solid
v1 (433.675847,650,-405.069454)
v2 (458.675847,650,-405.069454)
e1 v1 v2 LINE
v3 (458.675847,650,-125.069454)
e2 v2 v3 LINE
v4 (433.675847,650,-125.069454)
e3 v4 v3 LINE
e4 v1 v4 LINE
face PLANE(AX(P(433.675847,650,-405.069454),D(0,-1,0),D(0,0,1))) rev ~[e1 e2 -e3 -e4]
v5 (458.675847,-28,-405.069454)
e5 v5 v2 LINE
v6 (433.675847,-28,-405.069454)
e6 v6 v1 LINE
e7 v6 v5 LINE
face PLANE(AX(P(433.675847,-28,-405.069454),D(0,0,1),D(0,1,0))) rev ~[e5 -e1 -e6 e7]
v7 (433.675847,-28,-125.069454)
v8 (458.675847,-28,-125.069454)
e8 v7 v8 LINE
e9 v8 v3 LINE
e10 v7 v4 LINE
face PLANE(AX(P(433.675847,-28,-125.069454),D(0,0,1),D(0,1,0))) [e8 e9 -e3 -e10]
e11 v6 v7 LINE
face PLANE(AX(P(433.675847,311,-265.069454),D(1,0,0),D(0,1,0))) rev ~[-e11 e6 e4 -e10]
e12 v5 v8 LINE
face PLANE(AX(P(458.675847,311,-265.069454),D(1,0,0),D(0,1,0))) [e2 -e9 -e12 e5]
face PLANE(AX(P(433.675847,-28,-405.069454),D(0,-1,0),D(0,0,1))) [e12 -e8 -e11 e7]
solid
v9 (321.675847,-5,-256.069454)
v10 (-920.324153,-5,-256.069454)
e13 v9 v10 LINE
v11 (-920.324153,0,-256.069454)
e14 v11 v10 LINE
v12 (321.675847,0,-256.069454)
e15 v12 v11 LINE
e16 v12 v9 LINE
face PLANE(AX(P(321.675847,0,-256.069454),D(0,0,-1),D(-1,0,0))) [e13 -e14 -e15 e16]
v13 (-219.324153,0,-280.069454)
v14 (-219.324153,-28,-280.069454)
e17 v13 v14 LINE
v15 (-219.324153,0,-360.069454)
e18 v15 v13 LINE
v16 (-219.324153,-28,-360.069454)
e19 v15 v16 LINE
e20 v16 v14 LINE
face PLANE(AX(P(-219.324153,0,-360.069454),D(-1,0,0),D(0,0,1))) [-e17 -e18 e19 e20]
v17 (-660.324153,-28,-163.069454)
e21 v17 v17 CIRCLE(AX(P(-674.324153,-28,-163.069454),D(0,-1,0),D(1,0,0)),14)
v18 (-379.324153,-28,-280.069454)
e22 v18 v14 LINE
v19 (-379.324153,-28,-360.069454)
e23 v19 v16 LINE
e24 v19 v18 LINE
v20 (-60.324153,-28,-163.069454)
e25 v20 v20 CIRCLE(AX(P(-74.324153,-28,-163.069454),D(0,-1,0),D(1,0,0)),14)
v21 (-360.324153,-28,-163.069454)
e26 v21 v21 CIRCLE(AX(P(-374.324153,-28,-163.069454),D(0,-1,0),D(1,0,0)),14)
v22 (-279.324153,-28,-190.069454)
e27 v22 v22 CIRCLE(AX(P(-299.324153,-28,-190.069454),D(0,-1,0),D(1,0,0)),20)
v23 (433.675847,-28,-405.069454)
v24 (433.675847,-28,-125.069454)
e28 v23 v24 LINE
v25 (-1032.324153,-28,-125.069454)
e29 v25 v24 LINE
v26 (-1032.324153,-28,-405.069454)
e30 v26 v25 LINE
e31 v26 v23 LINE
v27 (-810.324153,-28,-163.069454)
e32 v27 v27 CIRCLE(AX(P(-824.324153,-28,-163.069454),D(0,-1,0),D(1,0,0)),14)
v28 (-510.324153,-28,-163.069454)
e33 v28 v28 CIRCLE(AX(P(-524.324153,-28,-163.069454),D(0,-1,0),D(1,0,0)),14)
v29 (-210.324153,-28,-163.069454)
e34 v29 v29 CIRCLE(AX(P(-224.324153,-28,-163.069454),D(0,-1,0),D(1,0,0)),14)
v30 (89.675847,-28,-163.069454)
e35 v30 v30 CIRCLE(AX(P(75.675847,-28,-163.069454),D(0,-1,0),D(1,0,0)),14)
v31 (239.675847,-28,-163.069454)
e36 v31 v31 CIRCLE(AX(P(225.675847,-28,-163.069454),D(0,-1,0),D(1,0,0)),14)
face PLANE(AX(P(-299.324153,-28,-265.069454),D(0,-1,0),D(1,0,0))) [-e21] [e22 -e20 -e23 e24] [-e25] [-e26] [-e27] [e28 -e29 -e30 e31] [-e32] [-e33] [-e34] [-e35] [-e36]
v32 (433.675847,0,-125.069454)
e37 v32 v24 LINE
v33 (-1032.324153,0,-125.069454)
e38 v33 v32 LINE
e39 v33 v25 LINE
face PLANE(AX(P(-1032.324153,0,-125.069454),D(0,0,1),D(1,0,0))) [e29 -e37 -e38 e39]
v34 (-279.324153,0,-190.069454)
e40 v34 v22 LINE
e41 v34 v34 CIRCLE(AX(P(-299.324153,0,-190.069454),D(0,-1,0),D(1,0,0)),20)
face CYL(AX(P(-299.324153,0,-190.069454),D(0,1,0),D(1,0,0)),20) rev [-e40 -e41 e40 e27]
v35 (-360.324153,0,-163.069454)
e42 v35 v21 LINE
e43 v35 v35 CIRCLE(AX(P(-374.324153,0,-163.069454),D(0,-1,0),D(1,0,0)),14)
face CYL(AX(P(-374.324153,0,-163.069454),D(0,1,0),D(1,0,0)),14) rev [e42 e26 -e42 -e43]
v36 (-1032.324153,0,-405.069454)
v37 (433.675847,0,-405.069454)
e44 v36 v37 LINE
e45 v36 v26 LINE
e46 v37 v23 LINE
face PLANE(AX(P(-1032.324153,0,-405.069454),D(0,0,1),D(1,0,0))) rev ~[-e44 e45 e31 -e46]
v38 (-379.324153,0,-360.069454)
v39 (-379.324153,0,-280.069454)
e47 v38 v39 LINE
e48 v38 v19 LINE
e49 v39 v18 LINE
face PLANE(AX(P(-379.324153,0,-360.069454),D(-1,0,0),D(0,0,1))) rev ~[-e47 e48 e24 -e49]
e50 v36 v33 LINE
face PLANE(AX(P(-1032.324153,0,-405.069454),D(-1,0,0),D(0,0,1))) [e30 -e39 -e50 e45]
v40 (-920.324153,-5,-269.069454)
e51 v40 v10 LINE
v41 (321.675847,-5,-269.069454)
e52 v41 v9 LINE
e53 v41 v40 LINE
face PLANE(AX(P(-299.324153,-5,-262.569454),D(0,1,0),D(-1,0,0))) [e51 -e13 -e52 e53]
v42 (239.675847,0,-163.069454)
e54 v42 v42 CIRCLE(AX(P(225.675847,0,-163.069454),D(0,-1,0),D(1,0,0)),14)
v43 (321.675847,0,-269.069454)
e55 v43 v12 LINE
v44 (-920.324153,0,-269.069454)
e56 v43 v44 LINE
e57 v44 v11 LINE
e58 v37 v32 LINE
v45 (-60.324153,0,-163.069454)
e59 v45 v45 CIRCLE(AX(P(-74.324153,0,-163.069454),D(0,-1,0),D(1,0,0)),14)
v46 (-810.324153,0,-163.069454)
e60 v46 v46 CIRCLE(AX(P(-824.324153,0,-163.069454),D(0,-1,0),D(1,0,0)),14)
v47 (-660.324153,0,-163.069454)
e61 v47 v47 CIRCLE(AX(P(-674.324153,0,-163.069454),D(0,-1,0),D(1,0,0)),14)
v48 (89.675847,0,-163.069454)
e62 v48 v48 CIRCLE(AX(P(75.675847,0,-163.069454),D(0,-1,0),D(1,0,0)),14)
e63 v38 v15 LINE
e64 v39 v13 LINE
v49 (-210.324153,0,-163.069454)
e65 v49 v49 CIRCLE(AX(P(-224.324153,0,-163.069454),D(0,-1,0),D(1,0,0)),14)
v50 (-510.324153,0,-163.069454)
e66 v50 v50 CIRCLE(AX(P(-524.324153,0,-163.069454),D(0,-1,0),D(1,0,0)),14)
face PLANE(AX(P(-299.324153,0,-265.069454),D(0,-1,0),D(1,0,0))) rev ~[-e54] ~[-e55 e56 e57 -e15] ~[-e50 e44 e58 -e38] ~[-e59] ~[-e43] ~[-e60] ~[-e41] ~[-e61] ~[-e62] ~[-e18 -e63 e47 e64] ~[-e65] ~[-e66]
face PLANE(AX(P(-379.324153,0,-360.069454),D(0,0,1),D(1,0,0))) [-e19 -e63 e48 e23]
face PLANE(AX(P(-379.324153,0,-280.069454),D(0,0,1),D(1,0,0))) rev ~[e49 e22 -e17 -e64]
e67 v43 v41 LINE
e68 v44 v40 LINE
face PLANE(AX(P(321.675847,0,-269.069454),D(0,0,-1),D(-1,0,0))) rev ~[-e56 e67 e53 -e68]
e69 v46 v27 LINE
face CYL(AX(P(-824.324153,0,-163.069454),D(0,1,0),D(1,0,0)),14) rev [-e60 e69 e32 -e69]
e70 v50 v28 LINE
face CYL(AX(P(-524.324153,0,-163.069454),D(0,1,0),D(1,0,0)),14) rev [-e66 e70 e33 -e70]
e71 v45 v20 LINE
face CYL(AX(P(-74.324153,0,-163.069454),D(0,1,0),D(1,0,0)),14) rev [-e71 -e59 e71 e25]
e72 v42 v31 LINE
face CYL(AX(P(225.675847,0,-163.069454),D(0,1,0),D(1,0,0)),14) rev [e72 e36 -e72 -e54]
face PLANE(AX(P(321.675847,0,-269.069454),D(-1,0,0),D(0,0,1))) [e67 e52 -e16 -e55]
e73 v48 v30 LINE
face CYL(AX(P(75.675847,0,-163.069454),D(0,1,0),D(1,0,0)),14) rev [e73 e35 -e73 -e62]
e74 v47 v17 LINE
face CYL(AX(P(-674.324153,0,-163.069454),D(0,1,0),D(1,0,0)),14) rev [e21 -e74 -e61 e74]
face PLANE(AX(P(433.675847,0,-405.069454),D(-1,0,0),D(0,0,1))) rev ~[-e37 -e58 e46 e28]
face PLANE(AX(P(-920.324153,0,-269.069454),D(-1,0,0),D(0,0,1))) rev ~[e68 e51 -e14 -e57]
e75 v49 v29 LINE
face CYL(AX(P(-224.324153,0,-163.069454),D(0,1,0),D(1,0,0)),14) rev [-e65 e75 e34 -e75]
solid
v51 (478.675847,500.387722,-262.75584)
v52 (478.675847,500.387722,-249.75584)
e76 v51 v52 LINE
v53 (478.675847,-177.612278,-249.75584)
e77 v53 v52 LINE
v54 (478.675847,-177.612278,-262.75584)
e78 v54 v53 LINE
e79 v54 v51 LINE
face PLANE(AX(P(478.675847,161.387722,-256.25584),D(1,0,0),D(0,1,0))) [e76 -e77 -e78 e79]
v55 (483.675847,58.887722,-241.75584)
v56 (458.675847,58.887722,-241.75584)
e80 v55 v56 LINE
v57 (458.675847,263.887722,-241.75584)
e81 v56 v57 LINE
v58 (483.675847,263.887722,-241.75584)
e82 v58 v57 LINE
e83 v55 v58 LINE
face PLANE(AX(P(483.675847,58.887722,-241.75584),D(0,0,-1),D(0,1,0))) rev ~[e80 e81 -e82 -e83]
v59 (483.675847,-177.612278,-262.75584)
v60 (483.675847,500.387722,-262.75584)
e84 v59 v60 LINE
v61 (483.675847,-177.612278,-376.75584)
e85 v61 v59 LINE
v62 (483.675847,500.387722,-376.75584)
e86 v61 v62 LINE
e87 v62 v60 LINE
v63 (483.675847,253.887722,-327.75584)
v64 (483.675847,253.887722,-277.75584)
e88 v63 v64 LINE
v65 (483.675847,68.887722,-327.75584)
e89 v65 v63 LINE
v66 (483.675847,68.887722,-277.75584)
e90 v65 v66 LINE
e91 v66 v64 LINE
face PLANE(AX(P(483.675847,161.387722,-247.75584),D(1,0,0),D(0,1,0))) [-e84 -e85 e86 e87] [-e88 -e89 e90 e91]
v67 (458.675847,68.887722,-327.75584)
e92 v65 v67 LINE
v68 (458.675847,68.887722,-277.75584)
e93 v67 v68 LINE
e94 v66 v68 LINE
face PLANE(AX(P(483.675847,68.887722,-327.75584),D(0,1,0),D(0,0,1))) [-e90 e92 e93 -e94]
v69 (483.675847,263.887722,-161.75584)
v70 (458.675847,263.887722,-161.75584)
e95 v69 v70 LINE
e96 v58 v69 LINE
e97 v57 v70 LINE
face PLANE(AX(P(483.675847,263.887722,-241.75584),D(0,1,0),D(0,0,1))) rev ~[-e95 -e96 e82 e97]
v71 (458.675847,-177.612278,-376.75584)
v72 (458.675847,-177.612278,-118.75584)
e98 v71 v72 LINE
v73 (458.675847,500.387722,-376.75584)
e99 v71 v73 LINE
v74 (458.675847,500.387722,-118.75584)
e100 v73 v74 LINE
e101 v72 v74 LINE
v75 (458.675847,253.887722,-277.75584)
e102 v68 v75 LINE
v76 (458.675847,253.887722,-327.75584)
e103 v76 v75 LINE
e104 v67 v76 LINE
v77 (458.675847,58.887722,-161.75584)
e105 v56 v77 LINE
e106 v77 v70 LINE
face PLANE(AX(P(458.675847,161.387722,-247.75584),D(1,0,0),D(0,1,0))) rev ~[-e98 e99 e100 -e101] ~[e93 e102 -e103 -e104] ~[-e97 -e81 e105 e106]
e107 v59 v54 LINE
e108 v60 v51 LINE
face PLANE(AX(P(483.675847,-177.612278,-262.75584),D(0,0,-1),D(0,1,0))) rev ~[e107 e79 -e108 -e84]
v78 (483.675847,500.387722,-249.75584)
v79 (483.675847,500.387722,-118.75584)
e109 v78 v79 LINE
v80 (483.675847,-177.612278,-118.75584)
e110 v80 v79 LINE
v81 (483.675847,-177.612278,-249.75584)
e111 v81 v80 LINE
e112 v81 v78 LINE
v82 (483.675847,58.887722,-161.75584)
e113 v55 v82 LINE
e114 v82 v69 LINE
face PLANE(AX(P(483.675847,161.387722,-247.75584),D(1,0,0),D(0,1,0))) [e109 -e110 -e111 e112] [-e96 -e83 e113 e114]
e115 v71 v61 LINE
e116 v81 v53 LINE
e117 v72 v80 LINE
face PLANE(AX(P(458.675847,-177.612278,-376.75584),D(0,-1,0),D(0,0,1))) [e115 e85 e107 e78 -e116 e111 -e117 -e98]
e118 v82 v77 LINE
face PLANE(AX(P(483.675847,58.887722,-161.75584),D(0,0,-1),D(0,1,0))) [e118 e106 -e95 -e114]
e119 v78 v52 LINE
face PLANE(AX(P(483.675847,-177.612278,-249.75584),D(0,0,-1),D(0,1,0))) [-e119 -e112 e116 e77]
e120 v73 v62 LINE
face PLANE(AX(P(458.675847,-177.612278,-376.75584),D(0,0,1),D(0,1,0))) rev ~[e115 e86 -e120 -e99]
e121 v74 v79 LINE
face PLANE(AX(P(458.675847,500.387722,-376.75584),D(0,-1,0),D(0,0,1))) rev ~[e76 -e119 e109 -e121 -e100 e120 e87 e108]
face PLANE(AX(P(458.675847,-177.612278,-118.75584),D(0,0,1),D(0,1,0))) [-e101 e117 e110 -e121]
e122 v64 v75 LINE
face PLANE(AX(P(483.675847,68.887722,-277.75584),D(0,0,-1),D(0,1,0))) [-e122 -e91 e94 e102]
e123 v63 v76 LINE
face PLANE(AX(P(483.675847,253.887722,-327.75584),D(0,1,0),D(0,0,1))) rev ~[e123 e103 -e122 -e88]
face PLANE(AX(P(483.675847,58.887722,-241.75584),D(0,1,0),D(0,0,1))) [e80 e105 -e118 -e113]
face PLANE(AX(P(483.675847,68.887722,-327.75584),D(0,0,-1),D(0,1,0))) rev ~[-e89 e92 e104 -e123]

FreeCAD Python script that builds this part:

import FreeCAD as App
import Part
import Sketcher
from FreeCAD import Vector

doc = App.newDocument("Part")
body = doc.addObject("PartDesign::Body", "Body")

sketch1 = body.newObject("Sketcher::SketchObject", "Sketch")
sketch1.AttachmentSupport = (doc.getObject("XZ_Plane"), [""])
sketch1.MapMode = "FlatFace"
sketch1.addGeometry([
    Part.LineSegment(Vector(-1032, -125, 0), Vector(-1032, -405, 0)),
    Part.LineSegment(Vector(-1032, -405, 0), Vector(434, -405, 0)),
    Part.LineSegment(Vector(434, -405, 0), Vector(434, -125, 0)),
    Part.LineSegment(Vector(434, -125, 0), Vector(-1032, -125, 0)),
    Part.LineSegment(Vector(-219, -360, 0), Vector(-379, -360, 0)),
    Part.LineSegment(Vector(-379, -360, 0), Vector(-379, -280, 0)),
    Part.LineSegment(Vector(-379, -280, 0), Vector(-219, -280, 0)),
    Part.LineSegment(Vector(-219, -280, 0), Vector(-219, -360, 0)),
    Part.Circle(Vector(-824, -163, 0), Vector(0, 0, 1), 14),
    Part.Circle(Vector(-674, -163, 0), Vector(0, 0, 1), 14),
    Part.Circle(Vector(-524, -163, 0), Vector(0, 0, 1), 14),
    Part.Circle(Vector(-374, -163, 0), Vector(0, 0, 1), 14),
    Part.Circle(Vector(-299, -190, 0), Vector(0, 0, 1), 20),
    Part.Circle(Vector(-224, -163, 0), Vector(0, 0, 1), 14),
    Part.Circle(Vector(-74, -163, 0), Vector(0, 0, 1), 14),
    Part.Circle(Vector(76, -163, 0), Vector(0, 0, 1), 14),
    Part.Circle(Vector(226, -163, 0), Vector(0, 0, 1), 14),
], False)
sketch1.addConstraint([
    Sketcher.Constraint("Coincident", 0, 2, 1, 1),
    Sketcher.Constraint("Coincident", 1, 2, 2, 1),
    Sketcher.Constraint("Coincident", 2, 2, 3, 1),
    Sketcher.Constraint("Coincident", 3, 2, 0, 1),
    Sketcher.Constraint("Coincident", 4, 2, 5, 1),
    Sketcher.Constraint("Coincident", 5, 2, 6, 1),
    Sketcher.Constraint("Coincident", 6, 2, 7, 1),
    Sketcher.Constraint("Coincident", 7, 2, 4, 1),
    Sketcher.Constraint("Vertical", 0),
    Sketcher.Constraint("Horizontal", 1),
    Sketcher.Constraint("Vertical", 2),
    Sketcher.Constraint("Horizontal", 3),
    Sketcher.Constraint("Horizontal", 4),
    Sketcher.Constraint("Vertical", 5),
    Sketcher.Constraint("Horizontal", 6),
    Sketcher.Constraint("Vertical", 7),
    Sketcher.Constraint("Equal", 8, 9),
    Sketcher.Constraint("Equal", 9, 10),
    Sketcher.Constraint("Equal", 10, 11),
    Sketcher.Constraint("Equal", 11, 13),
    Sketcher.Constraint("Equal", 13, 14),
    Sketcher.Constraint("Equal", 14, 15),
    Sketcher.Constraint("Equal", 15, 16),
    Sketcher.Constraint("Horizontal", 8, 3, 9, 3),
    Sketcher.Constraint("Horizontal", 9, 3, 10, 3),
    Sketcher.Constraint("Horizontal", 10, 3, 11, 3),
    Sketcher.Constraint("Horizontal", 11, 3, 13, 3),
    Sketcher.Constraint("Horizontal", 13, 3, 14, 3),
    Sketcher.Constraint("Horizontal", 14, 3, 15, 3),
    Sketcher.Constraint("Horizontal", 15, 3, 16, 3),
    Sketcher.Constraint("Diameter", 8, 28.0),
    Sketcher.Constraint("Diameter", 12, 40.0),
    Sketcher.Constraint("DistanceX", 1, 1, 1, 2, 1466.0),
    Sketcher.Constraint("DistanceX", 4, 2, 4, 1, 160.0),
    Sketcher.Constraint("DistanceY", 0, 2, 0, 1, 280.0),
    Sketcher.Constraint("DistanceY", 5, 1, 5, 2, 80.0),
    Sketcher.Constraint("DistanceX", 8, 3, 9, 3, 150.0),
    Sketcher.Constraint("DistanceX", 9, 3, 10, 3, 150.0),
    Sketcher.Constraint("DistanceX", 10, 3, 11, 3, 150.0),
    Sketcher.Constraint("DistanceX", 11, 3, 12, 3, 75.0),
    Sketcher.Constraint("DistanceY", 12, 3, 11, 3, 27.0),
    Sketcher.Constraint("DistanceX", 12, 3, 13, 3, 75.0),
    Sketcher.Constraint("DistanceX", 13, 3, 14, 3, 150.0),
    Sketcher.Constraint("DistanceX", 14, 3, 15, 3, 150.0),
    Sketcher.Constraint("DistanceX", 15, 3, 16, 3, 150.0),
    Sketcher.Constraint("DistanceX", 0, 2, 8, 3, 208.0),
    Sketcher.Constraint("DistanceY", 0, 2, 8, 3, 242.0),
    Sketcher.Constraint("DistanceX", 4, 2, 12, 3, 80.0),
    Sketcher.Constraint("DistanceY", 4, 2, 12, 3, 170.0),
    Sketcher.Constraint("DistanceX", 8, 3, -1, 1, 824.324153),
    Sketcher.Constraint("DistanceY", 8, 3, -1, 1, 163.069454),
])
pad1 = body.newObject("PartDesign::Pad", "Pad")
pad1.Profile = sketch1
pad1.Length = 28

sketch2 = body.newObject("Sketcher::SketchObject", "Sketch001")
sketch2.AttachmentSupport = (doc.getObject("XZ_Plane"), [""])
sketch2.MapMode = "FlatFace"
sketch2.addGeometry([
    Part.LineSegment(Vector(322, -256, 0), Vector(322, -269, 0)),
    Part.LineSegment(Vector(322, -269, 0), Vector(-920, -269, 0)),
    Part.LineSegment(Vector(-920, -269, 0), Vector(-920, -256, 0)),
    Part.LineSegment(Vector(-920, -256, 0), Vector(322, -256, 0)),
], False)
sketch2.addConstraint([
    Sketcher.Constraint("Coincident", 0, 2, 1, 1),
    Sketcher.Constraint("Coincident", 1, 2, 2, 1),
    Sketcher.Constraint("Coincident", 2, 2, 3, 1),
    Sketcher.Constraint("Coincident", 3, 2, 0, 1),
    Sketcher.Constraint("Vertical", 0),
    Sketcher.Constraint("Horizontal", 1),
    Sketcher.Constraint("Vertical", 2),
    Sketcher.Constraint("Horizontal", 3),
    Sketcher.Constraint("DistanceX", 1, 2, 1, 1, 1242.0),
    Sketcher.Constraint("DistanceY", 0, 2, 0, 1, 13.0),
    Sketcher.Constraint("DistanceX", -1, 1, 0, 2, 321.675847),
    Sketcher.Constraint("DistanceY", 0, 2, -1, 1, 269.069454),
])
pocket1 = body.newObject("PartDesign::Pocket", "Pocket")
pocket1.Profile = sketch2
pocket1.Length = 5
pocket1.Reversed = True
body2 = doc.addObject("PartDesign::Body", "Body001")

sketch3 = body2.newObject("Sketcher::SketchObject", "Sketch002")
sketch3.AttachmentSupport = (doc.getObject("YZ_Plane001"), [""])
sketch3.MapMode = "FlatFace"
sketch3.AttachmentOffset = App.Placement(Vector(0, 0, 433.675847), App.Rotation())
sketch3.addGeometry([
    Part.LineSegment(Vector(-28, -125, 0), Vector(-28, -405, 0)),
    Part.LineSegment(Vector(-28, -405, 0), Vector(650, -405, 0)),
    Part.LineSegment(Vector(650, -405, 0), Vector(650, -125, 0)),
    Part.LineSegment(Vector(650, -125, 0), Vector(-28, -125, 0)),
], False)
sketch3.addConstraint([
    Sketcher.Constraint("Coincident", 0, 2, 1, 1),
    Sketcher.Constraint("Coincident", 1, 2, 2, 1),
    Sketcher.Constraint("Coincident", 2, 2, 3, 1),
    Sketcher.Constraint("Coincident", 3, 2, 0, 1),
    Sketcher.Constraint("Vertical", 0),
    Sketcher.Constraint("Horizontal", 1),
    Sketcher.Constraint("Vertical", 2),
    Sketcher.Constraint("Horizontal", 3),
    Sketcher.Constraint("DistanceX", 1, 1, 1, 2, 678.0),
    Sketcher.Constraint("DistanceY", 0, 2, 0, 1, 280.0),
    Sketcher.Constraint("DistanceX", 0, 2, -1, 1, 28.0),
    Sketcher.Constraint("DistanceY", 0, 2, -1, 1, 405.069454),
])
pad2 = body2.newObject("PartDesign::Pad", "Pad001")
pad2.Profile = sketch3
pad2.Length = 25
body3 = doc.addObject("PartDesign::Body", "Body002")

sketch4 = body3.newObject("Sketcher::SketchObject", "Sketch003")
sketch4.AttachmentSupport = (doc.getObject("YZ_Plane002"), [""])
sketch4.MapMode = "FlatFace"
sketch4.AttachmentOffset = App.Placement(Vector(0, 0, 458.675847), App.Rotation())
sketch4.addGeometry([
    Part.LineSegment(Vector(-178, -119, 0), Vector(-178, -377, 0)),
    Part.LineSegment(Vector(-178, -377, 0), Vector(500, -377, 0)),
    Part.LineSegment(Vector(500, -377, 0), Vector(500, -119, 0)),
    Part.LineSegment(Vector(500, -119, 0), Vector(-178, -119, 0)),
], False)
sketch4.addConstraint([
    Sketcher.Constraint("Coincident", 0, 2, 1, 1),
    Sketcher.Constraint("Coincident", 1, 2, 2, 1),
    Sketcher.Constraint("Coincident", 2, 2, 3, 1),
    Sketcher.Constraint("Coincident", 3, 2, 0, 1),
    Sketcher.Constraint("Vertical", 0),
    Sketcher.Constraint("Horizontal", 1),
    Sketcher.Constraint("Vertical", 2),
    Sketcher.Constraint("Horizontal", 3),
    Sketcher.Constraint("DistanceX", 1, 1, 1, 2, 678.0),
    Sketcher.Constraint("DistanceY", 0, 2, 0, 1, 258.0),
    Sketcher.Constraint("DistanceY", 0, 2, -1, 1, 376.75584),
    Sketcher.Constraint("DistanceX", 0, 2, -1, 1, 177.612278),
])
pad3 = body3.newObject("PartDesign::Pad", "Pad002")
pad3.Profile = sketch4
pad3.Length = 25

sketch5 = body3.newObject("Sketcher::SketchObject", "Sketch004")
sketch5.AttachmentSupport = (doc.getObject("YZ_Plane002"), [""])
sketch5.MapMode = "FlatFace"
sketch5.AttachmentOffset = App.Placement(Vector(0, 0, 483.675847), App.Rotation())
sketch5.addGeometry([
    Part.LineSegment(Vector(59, -162, 0), Vector(59, -242, 0)),
    Part.LineSegment(Vector(59, -242, 0), Vector(264, -242, 0)),
    Part.LineSegment(Vector(264, -242, 0), Vector(264, -162, 0)),
    Part.LineSegment(Vector(264, -162, 0), Vector(59, -162, 0)),
    Part.LineSegment(Vector(69, -278, 0), Vector(69, -328, 0)),
    Part.LineSegment(Vector(69, -328, 0), Vector(254, -328, 0)),
    Part.LineSegment(Vector(254, -328, 0), Vector(254, -278, 0)),
    Part.LineSegment(Vector(254, -278, 0), Vector(69, -278, 0)),
], False)
sketch5.addConstraint([
    Sketcher.Constraint("Coincident", 0, 2, 1, 1),
    Sketcher.Constraint("Coincident", 1, 2, 2, 1),
    Sketcher.Constraint("Coincident", 2, 2, 3, 1),
    Sketcher.Constraint("Coincident", 3, 2, 0, 1),
    Sketcher.Constraint("Coincident", 4, 2, 5, 1),
    Sketcher.Constraint("Coincident", 5, 2, 6, 1),
    Sketcher.Constraint("Coincident", 6, 2, 7, 1),
    Sketcher.Constraint("Coincident", 7, 2, 4, 1),
    Sketcher.Constraint("Vertical", 0),
    Sketcher.Constraint("Horizontal", 1),
    Sketcher.Constraint("Vertical", 2),
    Sketcher.Constraint("Horizontal", 3),
    Sketcher.Constraint("Vertical", 4),
    Sketcher.Constraint("Horizontal", 5),
    Sketcher.Constraint("Vertical", 6),
    Sketcher.Constraint("Horizontal", 7),
    Sketcher.Constraint("DistanceX", 1, 1, 1, 2, 205.0),
    Sketcher.Constraint("DistanceX", 5, 1, 5, 2, 185.0),
    Sketcher.Constraint("DistanceY", 0, 2, 0, 1, 80.0),
    Sketcher.Constraint("DistanceY", 4, 2, 4, 1, 50.0),
    Sketcher.Constraint("DistanceX", 0, 2, 4, 2, 10.0),
    Sketcher.Constraint("DistanceY", 4, 2, 0, 2, 86.0),
    Sketcher.Constraint("DistanceY", 0, 2, -1, 1, 241.75584),
    Sketcher.Constraint("DistanceX", -1, 1, 0, 2, 58.887722),
])
pocket2 = body3.newObject("PartDesign::Pocket", "Pocket001")
pocket2.Profile = sketch5
pocket2.Type = "ThroughAll"

sketch6 = body3.newObject("Sketcher::SketchObject", "Sketch005")
sketch6.AttachmentSupport = (doc.getObject("YZ_Plane002"), [""])
sketch6.MapMode = "FlatFace"
sketch6.AttachmentOffset = App.Placement(Vector(0, 0, 483.675847), App.Rotation())
sketch6.addGeometry([
    Part.LineSegment(Vector(-178, -250, 0), Vector(-178, -263, 0)),
    Part.LineSegment(Vector(-178, -263, 0), Vector(500, -263, 0)),
    Part.LineSegment(Vector(500, -263, 0), Vector(500, -250, 0)),
    Part.LineSegment(Vector(500, -250, 0), Vector(-178, -250, 0)),
], False)
sketch6.addConstraint([
    Sketcher.Constraint("Coincident", 0, 2, 1, 1),
    Sketcher.Constraint("Coincident", 1, 2, 2, 1),
    Sketcher.Constraint("Coincident", 2, 2, 3, 1),
    Sketcher.Constraint("Coincident", 3, 2, 0, 1),
    Sketcher.Constraint("Vertical", 0),
    Sketcher.Constraint("Horizontal", 1),
    Sketcher.Constraint("Vertical", 2),
    Sketcher.Constraint("Horizontal", 3),
    Sketcher.Constraint("DistanceX", 1, 1, 1, 2, 678.0),
    Sketcher.Constraint("DistanceY", 0, 2, 0, 1, 13.0),
    Sketcher.Constraint("DistanceY", 0, 2, -1, 1, 262.75584),
    Sketcher.Constraint("DistanceX", 0, 2, -1, 1, 177.612278),
])
pocket3 = body3.newObject("PartDesign::Pocket", "Pocket002")
pocket3.Profile = sketch6
pocket3.Length = 5

doc.recompute()
